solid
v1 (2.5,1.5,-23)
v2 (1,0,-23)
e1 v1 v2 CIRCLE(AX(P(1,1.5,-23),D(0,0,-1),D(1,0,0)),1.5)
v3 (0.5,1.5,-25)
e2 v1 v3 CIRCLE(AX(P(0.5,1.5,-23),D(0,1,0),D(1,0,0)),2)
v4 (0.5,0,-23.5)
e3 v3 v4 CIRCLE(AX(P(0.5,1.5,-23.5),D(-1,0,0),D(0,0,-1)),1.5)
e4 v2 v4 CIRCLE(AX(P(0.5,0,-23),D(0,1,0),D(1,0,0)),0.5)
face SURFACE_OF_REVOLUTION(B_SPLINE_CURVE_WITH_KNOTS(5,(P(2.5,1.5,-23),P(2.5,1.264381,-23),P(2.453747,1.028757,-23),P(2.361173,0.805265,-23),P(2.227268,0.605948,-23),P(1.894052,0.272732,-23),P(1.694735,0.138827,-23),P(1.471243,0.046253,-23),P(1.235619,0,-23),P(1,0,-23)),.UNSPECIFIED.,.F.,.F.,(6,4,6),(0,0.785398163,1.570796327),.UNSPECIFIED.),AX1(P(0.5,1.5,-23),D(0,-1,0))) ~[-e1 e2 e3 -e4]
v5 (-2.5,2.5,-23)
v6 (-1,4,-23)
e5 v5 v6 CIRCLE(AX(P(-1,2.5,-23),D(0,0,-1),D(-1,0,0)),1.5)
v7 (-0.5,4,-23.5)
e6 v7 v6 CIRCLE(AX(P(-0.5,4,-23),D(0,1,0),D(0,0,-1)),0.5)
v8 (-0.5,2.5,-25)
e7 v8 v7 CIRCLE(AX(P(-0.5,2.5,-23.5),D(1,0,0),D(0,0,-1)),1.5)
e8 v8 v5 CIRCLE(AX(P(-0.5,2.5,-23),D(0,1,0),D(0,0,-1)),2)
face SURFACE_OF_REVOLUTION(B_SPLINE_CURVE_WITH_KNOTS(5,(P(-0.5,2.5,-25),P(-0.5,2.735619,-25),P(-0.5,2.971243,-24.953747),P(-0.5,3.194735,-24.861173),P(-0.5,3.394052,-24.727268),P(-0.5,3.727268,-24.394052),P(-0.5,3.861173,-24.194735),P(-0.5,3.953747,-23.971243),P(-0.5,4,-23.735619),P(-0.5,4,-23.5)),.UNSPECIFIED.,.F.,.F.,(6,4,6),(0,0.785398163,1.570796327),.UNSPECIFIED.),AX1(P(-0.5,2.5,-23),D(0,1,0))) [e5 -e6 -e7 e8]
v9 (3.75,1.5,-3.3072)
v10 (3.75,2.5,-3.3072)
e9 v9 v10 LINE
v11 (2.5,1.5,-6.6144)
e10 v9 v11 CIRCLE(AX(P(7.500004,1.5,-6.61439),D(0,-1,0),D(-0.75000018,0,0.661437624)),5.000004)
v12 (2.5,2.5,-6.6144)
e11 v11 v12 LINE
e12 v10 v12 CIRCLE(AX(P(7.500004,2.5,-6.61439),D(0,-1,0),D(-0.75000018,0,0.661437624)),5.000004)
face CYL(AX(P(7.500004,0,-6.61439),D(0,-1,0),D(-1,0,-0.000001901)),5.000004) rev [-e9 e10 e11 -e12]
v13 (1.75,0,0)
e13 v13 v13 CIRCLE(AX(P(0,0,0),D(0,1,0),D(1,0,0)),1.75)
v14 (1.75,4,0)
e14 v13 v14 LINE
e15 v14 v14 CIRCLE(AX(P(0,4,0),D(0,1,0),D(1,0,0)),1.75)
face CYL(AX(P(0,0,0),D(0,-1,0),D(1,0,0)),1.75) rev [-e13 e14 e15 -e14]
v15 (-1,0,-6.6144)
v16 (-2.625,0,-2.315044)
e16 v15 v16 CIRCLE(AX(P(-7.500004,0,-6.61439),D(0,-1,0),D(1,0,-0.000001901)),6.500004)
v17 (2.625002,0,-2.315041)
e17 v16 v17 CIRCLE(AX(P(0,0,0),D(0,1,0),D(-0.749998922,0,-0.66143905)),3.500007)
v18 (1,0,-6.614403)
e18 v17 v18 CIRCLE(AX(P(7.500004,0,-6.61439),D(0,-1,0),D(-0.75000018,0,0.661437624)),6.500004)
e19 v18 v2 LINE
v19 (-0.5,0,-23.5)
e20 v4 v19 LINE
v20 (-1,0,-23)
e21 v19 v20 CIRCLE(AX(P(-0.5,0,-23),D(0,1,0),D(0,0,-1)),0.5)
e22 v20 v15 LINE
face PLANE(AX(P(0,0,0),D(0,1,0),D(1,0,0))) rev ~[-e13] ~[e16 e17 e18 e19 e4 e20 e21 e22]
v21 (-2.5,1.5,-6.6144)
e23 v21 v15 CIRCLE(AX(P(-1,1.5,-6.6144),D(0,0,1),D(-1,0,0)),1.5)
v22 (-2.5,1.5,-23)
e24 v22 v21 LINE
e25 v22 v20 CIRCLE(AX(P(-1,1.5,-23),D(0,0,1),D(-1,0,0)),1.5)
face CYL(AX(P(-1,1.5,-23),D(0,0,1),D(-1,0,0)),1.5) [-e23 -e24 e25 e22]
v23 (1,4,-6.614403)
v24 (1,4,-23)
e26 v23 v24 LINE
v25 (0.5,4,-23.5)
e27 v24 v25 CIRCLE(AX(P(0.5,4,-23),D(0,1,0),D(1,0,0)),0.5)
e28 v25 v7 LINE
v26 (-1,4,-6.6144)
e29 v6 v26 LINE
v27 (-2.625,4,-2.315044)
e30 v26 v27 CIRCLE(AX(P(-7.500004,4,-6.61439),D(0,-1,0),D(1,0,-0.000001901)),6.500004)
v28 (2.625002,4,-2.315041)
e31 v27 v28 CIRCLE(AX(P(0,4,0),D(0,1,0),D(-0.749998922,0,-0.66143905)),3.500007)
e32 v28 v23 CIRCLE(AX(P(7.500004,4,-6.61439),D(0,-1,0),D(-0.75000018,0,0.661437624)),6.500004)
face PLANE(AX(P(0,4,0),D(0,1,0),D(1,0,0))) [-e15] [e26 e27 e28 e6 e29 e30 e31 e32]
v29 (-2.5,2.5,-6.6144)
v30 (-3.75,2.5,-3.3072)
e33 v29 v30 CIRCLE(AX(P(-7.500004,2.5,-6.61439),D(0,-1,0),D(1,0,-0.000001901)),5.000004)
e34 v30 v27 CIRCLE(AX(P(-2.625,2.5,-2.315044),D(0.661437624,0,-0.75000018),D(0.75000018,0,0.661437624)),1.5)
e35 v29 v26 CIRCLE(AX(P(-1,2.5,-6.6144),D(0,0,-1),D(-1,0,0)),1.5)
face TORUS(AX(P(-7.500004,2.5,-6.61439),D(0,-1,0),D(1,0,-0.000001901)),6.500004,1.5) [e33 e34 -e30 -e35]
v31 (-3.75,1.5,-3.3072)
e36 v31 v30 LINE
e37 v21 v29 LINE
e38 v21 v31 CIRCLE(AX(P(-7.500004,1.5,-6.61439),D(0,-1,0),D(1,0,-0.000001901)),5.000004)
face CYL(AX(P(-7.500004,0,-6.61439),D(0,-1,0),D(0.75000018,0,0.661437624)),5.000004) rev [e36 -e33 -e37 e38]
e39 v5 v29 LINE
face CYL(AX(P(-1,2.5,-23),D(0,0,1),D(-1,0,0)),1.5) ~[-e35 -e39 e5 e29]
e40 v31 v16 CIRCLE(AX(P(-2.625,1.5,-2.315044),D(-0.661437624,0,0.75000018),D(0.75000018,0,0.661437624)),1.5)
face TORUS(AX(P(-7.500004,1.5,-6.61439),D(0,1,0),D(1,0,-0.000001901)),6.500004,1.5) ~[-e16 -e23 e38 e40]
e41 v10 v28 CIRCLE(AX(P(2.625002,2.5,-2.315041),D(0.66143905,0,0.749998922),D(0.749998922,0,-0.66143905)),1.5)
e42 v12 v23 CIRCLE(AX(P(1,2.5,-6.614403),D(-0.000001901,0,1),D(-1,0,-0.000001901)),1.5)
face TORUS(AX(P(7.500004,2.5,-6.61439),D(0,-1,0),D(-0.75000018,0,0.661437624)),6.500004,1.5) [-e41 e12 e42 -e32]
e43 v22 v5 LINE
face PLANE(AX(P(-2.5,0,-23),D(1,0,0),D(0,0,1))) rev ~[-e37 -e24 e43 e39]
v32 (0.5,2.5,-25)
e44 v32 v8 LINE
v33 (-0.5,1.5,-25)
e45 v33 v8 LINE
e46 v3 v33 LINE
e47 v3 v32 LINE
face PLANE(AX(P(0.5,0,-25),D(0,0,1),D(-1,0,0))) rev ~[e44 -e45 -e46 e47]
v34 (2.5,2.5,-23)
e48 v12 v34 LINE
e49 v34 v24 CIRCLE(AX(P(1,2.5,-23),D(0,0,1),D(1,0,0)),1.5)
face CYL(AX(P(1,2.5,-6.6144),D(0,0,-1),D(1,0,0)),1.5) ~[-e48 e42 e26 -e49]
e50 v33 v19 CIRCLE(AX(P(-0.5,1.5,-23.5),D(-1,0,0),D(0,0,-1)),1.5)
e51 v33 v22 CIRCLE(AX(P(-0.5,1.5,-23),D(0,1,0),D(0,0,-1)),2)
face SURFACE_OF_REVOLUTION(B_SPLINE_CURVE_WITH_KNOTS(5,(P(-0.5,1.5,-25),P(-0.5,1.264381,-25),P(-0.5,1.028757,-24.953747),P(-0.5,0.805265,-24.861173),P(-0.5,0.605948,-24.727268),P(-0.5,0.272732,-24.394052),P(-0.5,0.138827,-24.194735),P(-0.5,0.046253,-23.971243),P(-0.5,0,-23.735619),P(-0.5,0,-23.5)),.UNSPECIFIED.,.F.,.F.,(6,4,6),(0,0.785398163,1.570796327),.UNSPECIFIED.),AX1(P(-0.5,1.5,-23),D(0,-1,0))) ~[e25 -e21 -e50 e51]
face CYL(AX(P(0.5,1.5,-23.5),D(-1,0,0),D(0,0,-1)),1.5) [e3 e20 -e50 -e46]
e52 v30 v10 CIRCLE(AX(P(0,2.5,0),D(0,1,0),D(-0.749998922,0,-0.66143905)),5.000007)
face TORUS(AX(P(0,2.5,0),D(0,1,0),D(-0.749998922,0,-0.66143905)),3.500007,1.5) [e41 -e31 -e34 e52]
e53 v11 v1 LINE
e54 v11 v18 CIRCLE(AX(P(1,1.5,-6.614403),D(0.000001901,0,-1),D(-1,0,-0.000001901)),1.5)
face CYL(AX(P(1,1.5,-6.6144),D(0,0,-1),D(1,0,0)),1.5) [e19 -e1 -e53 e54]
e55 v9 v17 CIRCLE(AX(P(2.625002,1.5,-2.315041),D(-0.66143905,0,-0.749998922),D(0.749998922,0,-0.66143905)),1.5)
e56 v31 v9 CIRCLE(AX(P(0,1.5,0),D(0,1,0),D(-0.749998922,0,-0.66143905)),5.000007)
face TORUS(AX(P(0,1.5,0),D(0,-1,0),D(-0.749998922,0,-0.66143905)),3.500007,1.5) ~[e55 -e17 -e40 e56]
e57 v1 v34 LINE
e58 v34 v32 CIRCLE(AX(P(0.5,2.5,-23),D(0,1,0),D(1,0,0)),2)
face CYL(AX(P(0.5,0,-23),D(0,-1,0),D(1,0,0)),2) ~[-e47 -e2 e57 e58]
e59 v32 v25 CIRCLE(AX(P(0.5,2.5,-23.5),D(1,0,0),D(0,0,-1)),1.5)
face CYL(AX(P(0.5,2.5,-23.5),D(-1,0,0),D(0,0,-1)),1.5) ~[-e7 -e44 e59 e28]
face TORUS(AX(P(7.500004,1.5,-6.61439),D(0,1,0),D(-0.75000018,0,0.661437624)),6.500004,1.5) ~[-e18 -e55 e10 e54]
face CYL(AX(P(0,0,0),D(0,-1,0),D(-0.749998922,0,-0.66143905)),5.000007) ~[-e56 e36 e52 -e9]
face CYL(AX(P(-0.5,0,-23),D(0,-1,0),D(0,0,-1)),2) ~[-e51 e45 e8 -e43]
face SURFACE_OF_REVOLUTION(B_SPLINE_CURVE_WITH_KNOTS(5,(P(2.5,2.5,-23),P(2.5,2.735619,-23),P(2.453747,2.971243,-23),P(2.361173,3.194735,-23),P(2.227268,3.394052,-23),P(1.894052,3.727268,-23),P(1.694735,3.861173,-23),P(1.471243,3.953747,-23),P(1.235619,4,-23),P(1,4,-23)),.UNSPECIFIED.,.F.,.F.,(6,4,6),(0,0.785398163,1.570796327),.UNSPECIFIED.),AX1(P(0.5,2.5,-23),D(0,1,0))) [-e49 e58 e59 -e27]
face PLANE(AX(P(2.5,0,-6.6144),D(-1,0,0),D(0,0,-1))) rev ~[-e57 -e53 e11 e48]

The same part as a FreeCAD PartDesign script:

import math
import FreeCAD as App
import Part
import Sketcher
from FreeCAD import Vector


def edges_at(feature, points):
    """Names of the edges that pass closest to the given points."""
    edges = feature.Shape.Edges
    near = lambda p: min(range(len(edges)), key=lambda i: edges[i].distToShape(Part.Vertex(*p))[0])
    return sorted({f"Edge{near(p) + 1}" for p in points})

doc = App.newDocument("Part")
body = doc.addObject("PartDesign::Body", "Body")

# Sketch on XZ plane
sketch1 = body.newObject("Sketcher::SketchObject", "Sketch")
sketch1.AttachmentSupport = (doc.getObject("XZ_Plane"), [""])
sketch1.MapMode = "FlatFace"
sketch1.addGeometry([
    Part.ArcOfCircle(Part.Circle(Vector(7.5, -6.6, 0), Vector(0, 0, 1), 5), math.radians(139), math.radians(180)),  # 0
    Part.LineSegment(Vector(2.5, -6.6, 0), Vector(2.5, -23, 0)),  # 1
    Part.ArcOfCircle(Part.Circle(Vector(0.5, -23, 0), Vector(0, 0, 1), 2), math.radians(-90), math.radians(0)),  # 2
    Part.LineSegment(Vector(0.5, -25, 0), Vector(-0.5, -25, 0)),  # 3
    Part.ArcOfCircle(Part.Circle(Vector(-0.5, -23, 0), Vector(0, 0, 1), 2), math.radians(180), math.radians(270)),  # 4
    Part.LineSegment(Vector(-2.5, -23, 0), Vector(-2.5, -6.6, 0)),  # 5
    Part.ArcOfCircle(Part.Circle(Vector(-7.5, -6.6, 0), Vector(0, 0, 1), 5), math.radians(0), math.radians(41)),  # 6
    Part.ArcOfCircle(Part.Circle(Vector(0, 0, 0), Vector(0, 0, 1), 5), math.radians(-41), math.radians(221)),  # 7
    Part.Circle(Vector(0, 0, 0), Vector(0, 0, 1), 1.8),  # 8
], False)
sketch1.addConstraint([
    Sketcher.Constraint("Tangent", 0, 2, 1, 1),
    Sketcher.Constraint("Tangent", 1, 2, 2, 2),
    Sketcher.Constraint("Tangent", 2, 1, 3, 1),
    Sketcher.Constraint("Tangent", 3, 2, 4, 2),
    Sketcher.Constraint("Tangent", 4, 1, 5, 1),
    Sketcher.Constraint("Tangent", 5, 2, 6, 1),
    Sketcher.Constraint("Tangent", 6, 2, 7, 2),
    Sketcher.Constraint("Tangent", 7, 1, 0, 1),
    Sketcher.Constraint("Vertical", 1),
    Sketcher.Constraint("Horizontal", 3),
    Sketcher.Constraint("Vertical", 5),
    Sketcher.Constraint("Coincident", 7, 3, -1, 1),
    Sketcher.Constraint("Coincident", 8, 3, -1, 1),
    Sketcher.Constraint("Equal", 2, 4),
    Sketcher.Constraint("Equal", 0, 6),
    Sketcher.Constraint("Equal", 6, 7),
    Sketcher.Constraint("Horizontal", 0, 3, 6, 3),
    Sketcher.Constraint("Radius", 0, 5.0),
    Sketcher.Constraint("Radius", 2, 2.0),
    Sketcher.Constraint("Diameter", 8, 3.5),
    Sketcher.Constraint("DistanceX", 6, 3, 0, 2, 10.0),
    Sketcher.Constraint("DistanceY", 2, 3, -1, 1, 23.0),
])
pad1 = body.newObject("PartDesign::Pad", "Pad")
pad1.Profile = sketch1
pad1.Length = 4
pad1.Reversed = True
doc.recompute()

fillet = body.newObject("PartDesign::Fillet", "Fillet")
fillet.Base = (pad1, edges_at(pad1, [
    (0, 4, -25),
    (-1.914, 4, -24.414),
    (-2.5, 4, -14.807),
    (-2.823, 4, -4.847),
    (0, 4, 5),
    (2.823, 4, -4.847),
    (2.5, 4, -14.807),
    (1.914, 4, -24.414),
    (0, 0, -25),
    (-1.914, 0, -24.414),
    (-2.5, 0, -14.807),
    (-2.823, 0, -4.847),
    (0, 0, 5),
    (2.823, 0, -4.847),
    (2.5, 0, -14.807),
    (1.914, 0, -24.414),
]))
fillet.Radius = 1.5

doc.recompute()
